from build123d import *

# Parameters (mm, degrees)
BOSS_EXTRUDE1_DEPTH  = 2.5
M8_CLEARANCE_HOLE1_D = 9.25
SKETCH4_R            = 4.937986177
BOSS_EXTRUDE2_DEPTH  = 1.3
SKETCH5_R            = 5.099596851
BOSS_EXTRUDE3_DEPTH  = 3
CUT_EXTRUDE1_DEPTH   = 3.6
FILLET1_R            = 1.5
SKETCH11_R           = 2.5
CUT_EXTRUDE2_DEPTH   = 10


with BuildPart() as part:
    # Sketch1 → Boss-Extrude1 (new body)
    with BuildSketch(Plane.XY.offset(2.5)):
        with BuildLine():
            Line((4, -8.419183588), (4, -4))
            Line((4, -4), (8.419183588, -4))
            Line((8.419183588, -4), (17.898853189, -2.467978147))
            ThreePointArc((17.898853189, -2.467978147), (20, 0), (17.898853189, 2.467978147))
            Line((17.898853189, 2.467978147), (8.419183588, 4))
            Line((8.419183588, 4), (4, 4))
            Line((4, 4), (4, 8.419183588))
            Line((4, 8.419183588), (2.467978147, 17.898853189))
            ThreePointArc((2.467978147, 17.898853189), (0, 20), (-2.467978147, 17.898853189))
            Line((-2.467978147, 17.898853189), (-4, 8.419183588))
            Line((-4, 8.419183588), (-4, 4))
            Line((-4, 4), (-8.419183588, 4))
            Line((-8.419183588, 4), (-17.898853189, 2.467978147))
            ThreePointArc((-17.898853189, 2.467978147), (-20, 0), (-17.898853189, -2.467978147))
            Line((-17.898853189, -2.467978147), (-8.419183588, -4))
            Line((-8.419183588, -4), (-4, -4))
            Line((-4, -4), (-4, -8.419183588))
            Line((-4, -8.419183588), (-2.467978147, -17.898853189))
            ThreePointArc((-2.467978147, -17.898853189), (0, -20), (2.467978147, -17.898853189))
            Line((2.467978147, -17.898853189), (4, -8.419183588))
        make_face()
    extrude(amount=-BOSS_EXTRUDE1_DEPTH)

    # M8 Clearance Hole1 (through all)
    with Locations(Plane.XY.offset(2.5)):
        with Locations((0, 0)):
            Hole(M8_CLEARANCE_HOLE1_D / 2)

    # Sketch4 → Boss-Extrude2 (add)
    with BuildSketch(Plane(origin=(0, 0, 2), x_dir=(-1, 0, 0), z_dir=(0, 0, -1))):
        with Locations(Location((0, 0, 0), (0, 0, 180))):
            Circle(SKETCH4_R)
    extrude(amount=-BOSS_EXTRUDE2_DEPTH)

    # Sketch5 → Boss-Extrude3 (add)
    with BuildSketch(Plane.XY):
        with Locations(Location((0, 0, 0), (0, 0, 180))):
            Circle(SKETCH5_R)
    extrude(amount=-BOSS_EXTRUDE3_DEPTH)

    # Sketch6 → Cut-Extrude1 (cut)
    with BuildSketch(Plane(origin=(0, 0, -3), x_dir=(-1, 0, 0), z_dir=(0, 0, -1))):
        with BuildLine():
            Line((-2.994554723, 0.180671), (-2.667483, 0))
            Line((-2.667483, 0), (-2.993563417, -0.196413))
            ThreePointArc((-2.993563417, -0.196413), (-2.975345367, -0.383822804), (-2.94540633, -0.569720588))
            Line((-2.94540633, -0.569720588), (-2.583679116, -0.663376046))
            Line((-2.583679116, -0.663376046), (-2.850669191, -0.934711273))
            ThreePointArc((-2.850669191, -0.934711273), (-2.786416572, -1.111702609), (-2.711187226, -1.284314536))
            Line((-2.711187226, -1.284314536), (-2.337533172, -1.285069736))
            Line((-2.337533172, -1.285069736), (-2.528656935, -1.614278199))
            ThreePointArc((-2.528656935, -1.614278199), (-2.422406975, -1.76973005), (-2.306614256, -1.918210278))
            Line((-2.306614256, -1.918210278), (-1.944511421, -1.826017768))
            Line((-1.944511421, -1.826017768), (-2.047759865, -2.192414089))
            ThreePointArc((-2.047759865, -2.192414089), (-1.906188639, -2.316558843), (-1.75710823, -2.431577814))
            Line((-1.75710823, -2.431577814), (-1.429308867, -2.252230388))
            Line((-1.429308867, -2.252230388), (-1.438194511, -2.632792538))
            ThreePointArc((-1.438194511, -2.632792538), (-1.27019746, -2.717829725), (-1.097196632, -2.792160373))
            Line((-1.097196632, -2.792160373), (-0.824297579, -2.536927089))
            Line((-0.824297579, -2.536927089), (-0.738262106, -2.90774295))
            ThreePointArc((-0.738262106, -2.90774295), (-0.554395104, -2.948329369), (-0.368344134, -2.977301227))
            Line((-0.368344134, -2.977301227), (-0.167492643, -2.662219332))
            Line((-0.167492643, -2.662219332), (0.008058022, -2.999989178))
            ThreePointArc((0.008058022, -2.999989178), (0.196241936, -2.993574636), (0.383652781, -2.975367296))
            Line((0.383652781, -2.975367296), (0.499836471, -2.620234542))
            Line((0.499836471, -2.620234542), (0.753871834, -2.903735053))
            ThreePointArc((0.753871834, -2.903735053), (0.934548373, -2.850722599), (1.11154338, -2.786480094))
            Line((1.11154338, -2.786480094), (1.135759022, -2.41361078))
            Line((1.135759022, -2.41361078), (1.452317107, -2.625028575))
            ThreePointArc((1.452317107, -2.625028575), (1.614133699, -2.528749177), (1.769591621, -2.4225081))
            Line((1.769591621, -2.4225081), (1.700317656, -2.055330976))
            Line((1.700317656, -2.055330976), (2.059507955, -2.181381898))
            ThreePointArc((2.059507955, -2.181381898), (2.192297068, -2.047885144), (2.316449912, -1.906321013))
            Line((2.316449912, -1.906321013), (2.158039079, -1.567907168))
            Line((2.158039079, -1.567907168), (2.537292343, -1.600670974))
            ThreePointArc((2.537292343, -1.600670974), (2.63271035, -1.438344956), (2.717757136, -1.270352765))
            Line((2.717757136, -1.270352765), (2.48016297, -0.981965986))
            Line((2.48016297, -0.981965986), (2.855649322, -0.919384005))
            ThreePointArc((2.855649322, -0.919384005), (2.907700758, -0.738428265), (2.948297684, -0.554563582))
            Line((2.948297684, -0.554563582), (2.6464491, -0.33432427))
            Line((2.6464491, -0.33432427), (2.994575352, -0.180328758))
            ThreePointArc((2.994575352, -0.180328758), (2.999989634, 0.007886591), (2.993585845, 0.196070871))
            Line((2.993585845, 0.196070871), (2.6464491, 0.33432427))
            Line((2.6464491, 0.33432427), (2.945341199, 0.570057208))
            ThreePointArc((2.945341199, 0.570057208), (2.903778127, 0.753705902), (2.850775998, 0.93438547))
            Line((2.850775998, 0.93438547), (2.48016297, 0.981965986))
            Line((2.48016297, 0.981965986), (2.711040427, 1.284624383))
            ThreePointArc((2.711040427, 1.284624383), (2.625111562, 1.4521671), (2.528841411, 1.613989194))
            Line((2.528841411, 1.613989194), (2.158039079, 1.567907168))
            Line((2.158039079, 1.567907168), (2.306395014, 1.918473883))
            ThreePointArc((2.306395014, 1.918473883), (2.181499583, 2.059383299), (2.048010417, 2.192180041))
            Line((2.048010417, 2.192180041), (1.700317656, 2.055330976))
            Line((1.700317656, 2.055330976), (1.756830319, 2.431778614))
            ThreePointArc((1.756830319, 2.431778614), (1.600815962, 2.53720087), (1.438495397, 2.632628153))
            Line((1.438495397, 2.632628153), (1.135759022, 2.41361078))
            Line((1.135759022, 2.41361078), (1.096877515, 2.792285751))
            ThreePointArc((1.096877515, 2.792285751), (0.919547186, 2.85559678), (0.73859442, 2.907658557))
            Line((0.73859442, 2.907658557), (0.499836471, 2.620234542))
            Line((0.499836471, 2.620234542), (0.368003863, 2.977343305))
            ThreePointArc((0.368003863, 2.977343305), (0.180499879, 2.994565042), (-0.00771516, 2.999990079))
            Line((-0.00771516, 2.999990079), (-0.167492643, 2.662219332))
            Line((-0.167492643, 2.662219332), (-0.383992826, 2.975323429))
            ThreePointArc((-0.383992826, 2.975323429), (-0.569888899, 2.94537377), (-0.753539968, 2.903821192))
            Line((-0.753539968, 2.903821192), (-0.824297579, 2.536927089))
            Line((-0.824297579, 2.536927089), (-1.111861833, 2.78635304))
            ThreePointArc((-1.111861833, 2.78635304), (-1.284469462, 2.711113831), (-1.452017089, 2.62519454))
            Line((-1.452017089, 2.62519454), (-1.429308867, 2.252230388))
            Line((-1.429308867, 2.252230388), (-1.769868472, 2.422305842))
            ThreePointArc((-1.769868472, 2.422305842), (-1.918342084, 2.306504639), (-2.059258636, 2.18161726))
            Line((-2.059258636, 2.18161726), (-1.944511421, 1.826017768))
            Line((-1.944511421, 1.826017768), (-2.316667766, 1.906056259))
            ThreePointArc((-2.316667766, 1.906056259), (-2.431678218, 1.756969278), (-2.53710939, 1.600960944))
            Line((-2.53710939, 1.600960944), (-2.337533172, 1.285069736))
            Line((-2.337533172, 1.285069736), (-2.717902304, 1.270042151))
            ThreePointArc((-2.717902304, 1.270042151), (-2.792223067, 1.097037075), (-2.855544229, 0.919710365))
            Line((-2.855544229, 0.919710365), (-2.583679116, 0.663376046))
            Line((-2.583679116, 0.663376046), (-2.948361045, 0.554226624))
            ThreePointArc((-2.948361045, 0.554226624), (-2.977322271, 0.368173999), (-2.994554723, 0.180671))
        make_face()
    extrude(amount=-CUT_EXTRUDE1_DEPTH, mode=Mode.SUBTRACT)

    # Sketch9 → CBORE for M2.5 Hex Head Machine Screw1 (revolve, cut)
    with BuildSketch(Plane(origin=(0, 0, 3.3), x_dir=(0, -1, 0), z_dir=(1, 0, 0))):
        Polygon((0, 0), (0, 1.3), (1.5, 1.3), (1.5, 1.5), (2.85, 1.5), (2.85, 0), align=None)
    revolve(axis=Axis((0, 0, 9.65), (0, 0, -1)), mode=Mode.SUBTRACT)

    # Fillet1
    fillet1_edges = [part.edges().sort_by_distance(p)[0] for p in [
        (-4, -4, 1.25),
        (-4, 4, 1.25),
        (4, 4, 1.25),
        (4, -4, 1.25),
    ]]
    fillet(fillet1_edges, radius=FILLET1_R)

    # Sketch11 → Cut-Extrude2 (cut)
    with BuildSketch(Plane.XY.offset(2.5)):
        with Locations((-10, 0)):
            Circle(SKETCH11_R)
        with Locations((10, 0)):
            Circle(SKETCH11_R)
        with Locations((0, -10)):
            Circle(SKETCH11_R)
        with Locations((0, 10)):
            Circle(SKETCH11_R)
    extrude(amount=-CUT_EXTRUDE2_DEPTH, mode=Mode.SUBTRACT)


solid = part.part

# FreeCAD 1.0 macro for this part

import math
import FreeCAD as App
import Part
import Sketcher


def edges_at(feature, points):
    """Names of the edges that pass closest to the given points."""
    edges = feature.Shape.Edges
    near = lambda p: min(range(len(edges)), key=lambda i: edges[i].distToShape(Part.Vertex(*p))[0])
    return sorted({f"Edge{near(p) + 1}" for p in points})

doc = App.newDocument("Part")
body = doc.addObject("PartDesign::Body", "Body")

# Sketch on XY plane
sketch1 = body.newObject("Sketcher::SketchObject", "Sketch")
sketch1.AttachmentSupport = (doc.getObject("XY_Plane"), [""])
sketch1.MapMode = "FlatFace"
sketch1.AttachmentOffset = App.Placement(App.Vector(0, 0, 2.5), App.Rotation())
sketch1.addGeometry([
    Part.LineSegment(App.Vector(4, -8.4, 0), App.Vector(4, -4, 0)),  # 0
    Part.LineSegment(App.Vector(4, -4, 0), App.Vector(8.4, -4, 0)),  # 1
    Part.LineSegment(App.Vector(8.4, -4, 0), App.Vector(17.9, -2.5, 0)),  # 2
    Part.ArcOfCircle(Part.Circle(App.Vector(17.5, 0, 0), App.Vector(0, 0, 1), 2.5), math.radians(-81), math.radians(81)),  # 3
    Part.LineSegment(App.Vector(17.9, 2.5, 0), App.Vector(8.4, 4, 0)),  # 4
    Part.LineSegment(App.Vector(8.4, 4, 0), App.Vector(4, 4, 0)),  # 5
    Part.LineSegment(App.Vector(4, 4, 0), App.Vector(4, 8.4, 0)),  # 6
    Part.LineSegment(App.Vector(4, 8.4, 0), App.Vector(2.5, 17.9, 0)),  # 7
    Part.ArcOfCircle(Part.Circle(App.Vector(0, 17.5, 0), App.Vector(0, 0, 1), 2.5), math.radians(9), math.radians(171)),  # 8
    Part.LineSegment(App.Vector(-2.5, 17.9, 0), App.Vector(-4, 8.4, 0)),  # 9
    Part.LineSegment(App.Vector(-4, 8.4, 0), App.Vector(-4, 4, 0)),  # 10
    Part.LineSegment(App.Vector(-4, 4, 0), App.Vector(-8.4, 4, 0)),  # 11
    Part.LineSegment(App.Vector(-8.4, 4, 0), App.Vector(-17.9, 2.5, 0)),  # 12
    Part.ArcOfCircle(Part.Circle(App.Vector(-17.5, 0, 0), App.Vector(0, 0, 1), 2.5), math.radians(99), math.radians(261)),  # 13
    Part.LineSegment(App.Vector(-17.9, -2.5, 0), App.Vector(-8.4, -4, 0)),  # 14
    Part.LineSegment(App.Vector(-8.4, -4, 0), App.Vector(-4, -4, 0)),  # 15
    Part.LineSegment(App.Vector(-4, -4, 0), App.Vector(-4, -8.4, 0)),  # 16
    Part.LineSegment(App.Vector(-4, -8.4, 0), App.Vector(-2.5, -17.9, 0)),  # 17
    Part.ArcOfCircle(Part.Circle(App.Vector(0, -17.5, 0), App.Vector(0, 0, 1), 2.5), math.radians(-171), math.radians(-9)),  # 18
    Part.LineSegment(App.Vector(2.5, -17.9, 0), App.Vector(4, -8.4, 0)),  # 19
], False)
sketch1.addConstraint([
    Sketcher.Constraint("Coincident", 0, 2, 1, 1),
    Sketcher.Constraint("Coincident", 1, 2, 2, 1),
    Sketcher.Constraint("Tangent", 2, 2, 3, 1),
    Sketcher.Constraint("Tangent", 3, 2, 4, 1),
    Sketcher.Constraint("Coincident", 4, 2, 5, 1),
    Sketcher.Constraint("Coincident", 5, 2, 6, 1),
    Sketcher.Constraint("Coincident", 6, 2, 7, 1),
    Sketcher.Constraint("Tangent", 7, 2, 8, 1),
    Sketcher.Constraint("Tangent", 8, 2, 9, 1),
    Sketcher.Constraint("Coincident", 9, 2, 10, 1),
    Sketcher.Constraint("Coincident", 10, 2, 11, 1),
    Sketcher.Constraint("Coincident", 11, 2, 12, 1),
    Sketcher.Constraint("Tangent", 12, 2, 13, 1),
    Sketcher.Constraint("Tangent", 13, 2, 14, 1),
    Sketcher.Constraint("Coincident", 14, 2, 15, 1),
    Sketcher.Constraint("Coincident", 15, 2, 16, 1),
    Sketcher.Constraint("Coincident", 16, 2, 17, 1),
    Sketcher.Constraint("Tangent", 17, 2, 18, 1),
    Sketcher.Constraint("Tangent", 18, 2, 19, 1),
    Sketcher.Constraint("Coincident", 19, 2, 0, 1),
    Sketcher.Constraint("Vertical", 0),
    Sketcher.Constraint("Horizontal", 1),
    Sketcher.Constraint("Horizontal", 5),
    Sketcher.Constraint("Vertical", 6),
    Sketcher.Constraint("Vertical", 10),
    Sketcher.Constraint("Horizontal", 11),
    Sketcher.Constraint("Horizontal", 15),
    Sketcher.Constraint("Vertical", 16),
    Sketcher.Constraint("Equal", 3, 8),
    Sketcher.Constraint("Equal", 8, 13),
    Sketcher.Constraint("Equal", 13, 18),
    Sketcher.Constraint("Symmetric", 3, 3, 13, 3, -1, 1),
    Sketcher.Constraint("Symmetric", 8, 3, 18, 3, -1, 1),
    Sketcher.Constraint("Symmetric", 0, 2, 10, 2, -1, 1),
    Sketcher.Constraint("Symmetric", 4, 2, 14, 2, -1, 1),
    Sketcher.Constraint("Symmetric", 6, 2, 16, 2, -1, 1),
    Sketcher.Constraint("Symmetric", 7, 2, 8, 2, -2),
    Sketcher.Constraint("Symmetric", 5, 2, 10, 2, -2),
    Sketcher.Constraint("Symmetric", 3, 2, 12, 2, -2),
    Sketcher.Constraint("Perpendicular", 2, 7),
    Sketcher.Constraint("Perpendicular", 4, 9),
    Sketcher.Constraint("Perpendicular", 14, 19),
    Sketcher.Constraint("Equal", 15, 0),
    Sketcher.Constraint("Equal", 4, 7),
    Sketcher.Constraint("Radius", 3, 2.5),
    Sketcher.Constraint("DistanceX", -1, 1, 0, 2, 4.0),
    Sketcher.Constraint("DistanceX", 13, 3, 3, 3, 35.0),
    Sketcher.Constraint("DistanceX", 1, 1, 1, 2, 4.419184),
])
pad1 = body.newObject("PartDesign::Pad", "Pad")
pad1.Profile = sketch1
pad1.Length = 2.5
pad1.Reversed = True

# Sketch on XY plane
sketch2 = body.newObject("Sketcher::SketchObject", "Sketch001")
sketch2.AttachmentSupport = (doc.getObject("XY_Plane"), [""])
sketch2.MapMode = "FlatFace"
sketch2.AttachmentOffset = App.Placement(App.Vector(0, 0, 2.5), App.Rotation())
sketch2.addGeometry(Part.Circle(App.Vector(0, 0, 0), App.Vector(0, 0, 1), 4.6), False)
sketch2.addConstraint([
    Sketcher.Constraint("Coincident", 0, 3, -1, 1),
    Sketcher.Constraint("Diameter", 0, 9.25),
])
doc.recompute()
hole = body.newObject("PartDesign::Hole", "Hole")
hole.Profile = sketch2
hole.ThreadType = "None"
hole.Diameter = 9.25
hole.DepthType = "ThroughAll"

# Sketch on XY plane
sketch3 = body.newObject("Sketcher::SketchObject", "Sketch002")
sketch3.AttachmentSupport = (doc.getObject("XY_Plane"), [""])
sketch3.MapMode = "FlatFace"
sketch3.AttachmentOffset = App.Placement(App.Vector(0, 0, 2), App.Rotation())
sketch3.addGeometry(Part.Circle(App.Vector(0, 0, 0), App.Vector(0, 0, 1), 4.9), False)
sketch3.addConstraint([
    Sketcher.Constraint("Coincident", 0, 3, -1, 1),
    Sketcher.Constraint("Diameter", 0, 9.875972),
])
pad2 = body.newObject("PartDesign::Pad", "Pad001")
pad2.Profile = sketch3
pad2.Length = 1.3

# Sketch on XY plane
sketch4 = body.newObject("Sketcher::SketchObject", "Sketch003")
sketch4.AttachmentSupport = (doc.getObject("XY_Plane"), [""])
sketch4.MapMode = "FlatFace"
sketch4.addGeometry(Part.Circle(App.Vector(0, 0, 0), App.Vector(0, 0, 1), 5), False)
sketch4.addConstraint([
    Sketcher.Constraint("Coincident", 0, 3, -1, 1),
    Sketcher.Constraint("Diameter", 0, 10.199194),
])
pad3 = body.newObject("PartDesign::Pad", "Pad002")
pad3.Profile = sketch4
pad3.Length = 3
pad3.Reversed = True

# Sketch on XY plane
sketch5 = body.newObject("Sketcher::SketchObject", "Sketch004")
sketch5.AttachmentSupport = (doc.getObject("XY_Plane"), [""])
sketch5.MapMode = "FlatFace"
sketch5.AttachmentOffset = App.Placement(App.Vector(0, 0, -3), App.Rotation())
sketch5.addGeometry([
    Part.LineSegment(App.Vector(2.994555, 0.180671, 0), App.Vector(2.667483, 0, 0)),  # 0
    Part.LineSegment(App.Vector(2.667483, 0, 0), App.Vector(2.993563, -0.196413, 0)),  # 1
    Part.ArcOfCircle(Part.Circle(App.Vector(0, 0, 0), App.Vector(0, 0, 1), 3), math.radians(-10.947349), math.radians(-3.753897)),  # 2
    Part.LineSegment(App.Vector(2.945406, -0.569721, 0), App.Vector(2.583679, -0.663376, 0)),  # 3
    Part.LineSegment(App.Vector(2.583679, -0.663376, 0), App.Vector(2.850669, -0.934711, 0)),  # 4
    Part.ArcOfCircle(Part.Circle(App.Vector(0, 0, 0), App.Vector(0, 0, 1), 3), math.radians(-25.347349), math.radians(-18.153897)),  # 5
    Part.LineSegment(App.Vector(2.711187, -1.284315, 0), App.Vector(2.337533, -1.28507, 0)),  # 6
    Part.LineSegment(App.Vector(2.337533, -1.28507, 0), App.Vector(2.528657, -1.614278, 0)),  # 7
    Part.ArcOfCircle(Part.Circle(App.Vector(0, 0, 0), App.Vector(0, 0, 1), 3), math.radians(-39.747349), math.radians(-32.553897)),  # 8
    Part.LineSegment(App.Vector(2.306614, -1.91821, 0), App.Vector(1.944511, -1.826018, 0)),  # 9
    Part.LineSegment(App.Vector(1.944511, -1.826018, 0), App.Vector(2.04776, -2.192414, 0)),  # 10
    Part.ArcOfCircle(Part.Circle(App.Vector(0, 0, 0), App.Vector(0, 0, 1), 3), math.radians(-54.147349), math.radians(-46.953897)),  # 11
    Part.LineSegment(App.Vector(1.757108, -2.431578, 0), App.Vector(1.429309, -2.25223, 0)),  # 12
    Part.LineSegment(App.Vector(1.429309, -2.25223, 0), App.Vector(1.438195, -2.632793, 0)),  # 13
    Part.ArcOfCircle(Part.Circle(App.Vector(0, 0, 0), App.Vector(0, 0, 1), 3), math.radians(-68.547349), math.radians(-61.353897)),  # 14
    Part.LineSegment(App.Vector(1.097197, -2.79216, 0), App.Vector(0.824298, -2.536927, 0)),  # 15
    Part.LineSegment(App.Vector(0.824298, -2.536927, 0), App.Vector(0.738262, -2.907743, 0)),  # 16
    Part.ArcOfCircle(Part.Circle(App.Vector(0, 0, 0), App.Vector(0, 0, 1), 3), math.radians(-82.947349), math.radians(-75.753897)),  # 17
    Part.LineSegment(App.Vector(0.368344, -2.977301, 0), App.Vector(0.167493, -2.662219, 0)),  # 18
    Part.LineSegment(App.Vector(0.167493, -2.662219, 0), App.Vector(-0.008058, -2.999989, 0)),  # 19
    Part.ArcOfCircle(Part.Circle(App.Vector(0, 0, 0), App.Vector(0, 0, 1), 3), math.radians(-97.347349), math.radians(-90.153897)),  # 20
    Part.LineSegment(App.Vector(-0.383653, -2.975367, 0), App.Vector(-0.499836, -2.620235, 0)),  # 21
    Part.LineSegment(App.Vector(-0.499836, -2.620235, 0), App.Vector(-0.753872, -2.903735, 0)),  # 22
    Part.ArcOfCircle(Part.Circle(App.Vector(0, 0, 0), App.Vector(0, 0, 1), 3), math.radians(-111.747349), math.radians(-104.553897)),  # 23
    Part.LineSegment(App.Vector(-1.111543, -2.78648, 0), App.Vector(-1.135759, -2.413611, 0)),  # 24
    Part.LineSegment(App.Vector(-1.135759, -2.413611, 0), App.Vector(-1.452317, -2.625029, 0)),  # 25
    Part.ArcOfCircle(Part.Circle(App.Vector(0, 0, 0), App.Vector(0, 0, 1), 3), math.radians(-126.147349), math.radians(-118.953897)),  # 26
    Part.LineSegment(App.Vector(-1.769592, -2.422508, 0), App.Vector(-1.700318, -2.055331, 0)),  # 27
    Part.LineSegment(App.Vector(-1.700318, -2.055331, 0), App.Vector(-2.059508, -2.181382, 0)),  # 28
    Part.ArcOfCircle(Part.Circle(App.Vector(0, 0, 0), App.Vector(0, 0, 1), 3), math.radians(-140.547349), math.radians(-133.353897)),  # 29
    Part.LineSegment(App.Vector(-2.31645, -1.906321, 0), App.Vector(-2.158039, -1.567907, 0)),  # 30
    Part.LineSegment(App.Vector(-2.158039, -1.567907, 0), App.Vector(-2.537292, -1.600671, 0)),  # 31
    Part.ArcOfCircle(Part.Circle(App.Vector(0, 0, 0), App.Vector(0, 0, 1), 3), math.radians(-154.947349), math.radians(-147.753897)),  # 32
    Part.LineSegment(App.Vector(-2.717757, -1.270353, 0), App.Vector(-2.480163, -0.981966, 0)),  # 33
    Part.LineSegment(App.Vector(-2.480163, -0.981966, 0), App.Vector(-2.855649, -0.919384, 0)),  # 34
    Part.ArcOfCircle(Part.Circle(App.Vector(0, 0, 0), App.Vector(0, 0, 1), 3), math.radians(-169.347349), math.radians(-162.153897)),  # 35
    Part.LineSegment(App.Vector(-2.948298, -0.554564, 0), App.Vector(-2.646449, -0.334324, 0)),  # 36
    Part.LineSegment(App.Vector(-2.646449, -0.334324, 0), App.Vector(-2.994575, -0.180329, 0)),  # 37
    Part.ArcOfCircle(Part.Circle(App.Vector(0, 0, 0), App.Vector(0, 0, 1), 3), math.radians(176.252651), math.radians(183.446103)),  # 38
    Part.LineSegment(App.Vector(-2.993586, 0.196071, 0), App.Vector(-2.646449, 0.334324, 0)),  # 39
    Part.LineSegment(App.Vector(-2.646449, 0.334324, 0), App.Vector(-2.945341, 0.570057, 0)),  # 40
    Part.ArcOfCircle(Part.Circle(App.Vector(0, 0, 0), App.Vector(0, 0, 1), 3), math.radians(161.852651), math.radians(169.046103)),  # 41
    Part.LineSegment(App.Vector(-2.850776, 0.934385, 0), App.Vector(-2.480163, 0.981966, 0)),  # 42
    Part.LineSegment(App.Vector(-2.480163, 0.981966, 0), App.Vector(-2.71104, 1.284624, 0)),  # 43
    Part.ArcOfCircle(Part.Circle(App.Vector(0, 0, 0), App.Vector(0, 0, 1), 3), math.radians(147.452651), math.radians(154.646103)),  # 44
    Part.LineSegment(App.Vector(-2.528841, 1.613989, 0), App.Vector(-2.158039, 1.567907, 0)),  # 45
    Part.LineSegment(App.Vector(-2.158039, 1.567907, 0), App.Vector(-2.306395, 1.918474, 0)),  # 46
    Part.ArcOfCircle(Part.Circle(App.Vector(0, 0, 0), App.Vector(0, 0, 1), 3), math.radians(133.052651), math.radians(140.246103)),  # 47
    Part.LineSegment(App.Vector(-2.04801, 2.19218, 0), App.Vector(-1.700318, 2.055331, 0)),  # 48
    Part.LineSegment(App.Vector(-1.700318, 2.055331, 0), App.Vector(-1.75683, 2.431779, 0)),  # 49
    Part.ArcOfCircle(Part.Circle(App.Vector(0, 0, 0), App.Vector(0, 0, 1), 3), math.radians(118.652651), math.radians(125.846103)),  # 50
    Part.LineSegment(App.Vector(-1.438495, 2.632628, 0), App.Vector(-1.135759, 2.413611, 0)),  # 51
    Part.LineSegment(App.Vector(-1.135759, 2.413611, 0), App.Vector(-1.096878, 2.792286, 0)),  # 52
    Part.ArcOfCircle(Part.Circle(App.Vector(0, 0, 0), App.Vector(0, 0, 1), 3), math.radians(104.252651), math.radians(111.446103)),  # 53
    Part.LineSegment(App.Vector(-0.738594, 2.907659, 0), App.Vector(-0.499836, 2.620235, 0)),  # 54
    Part.LineSegment(App.Vector(-0.499836, 2.620235, 0), App.Vector(-0.368004, 2.977343, 0)),  # 55
    Part.ArcOfCircle(Part.Circle(App.Vector(0, 0, 0), App.Vector(0, 0, 1), 3), math.radians(89.852651), math.radians(97.046103)),  # 56
    Part.LineSegment(App.Vector(0.007715, 2.99999, 0), App.Vector(0.167493, 2.662219, 0)),  # 57
    Part.LineSegment(App.Vector(0.167493, 2.662219, 0), App.Vector(0.383993, 2.975323, 0)),  # 58
    Part.ArcOfCircle(Part.Circle(App.Vector(0, 0, 0), App.Vector(0, 0, 1), 3), math.radians(75.452651), math.radians(82.646103)),  # 59
    Part.LineSegment(App.Vector(0.75354, 2.903821, 0), App.Vector(0.824298, 2.536927, 0)),  # 60
    Part.LineSegment(App.Vector(0.824298, 2.536927, 0), App.Vector(1.111862, 2.786353, 0)),  # 61
    Part.ArcOfCircle(Part.Circle(App.Vector(0, 0, 0), App.Vector(0, 0, 1), 3), math.radians(61.052651), math.radians(68.246103)),  # 62
    Part.LineSegment(App.Vector(1.452017, 2.625195, 0), App.Vector(1.429309, 2.25223, 0)),  # 63
    Part.LineSegment(App.Vector(1.429309, 2.25223, 0), App.Vector(1.769868, 2.422306, 0)),  # 64
    Part.ArcOfCircle(Part.Circle(App.Vector(0, 0, 0), App.Vector(0, 0, 1), 3), math.radians(46.652651), math.radians(53.846103)),  # 65
    Part.LineSegment(App.Vector(2.059259, 2.181617, 0), App.Vector(1.944511, 1.826018, 0)),  # 66
    Part.LineSegment(App.Vector(1.944511, 1.826018, 0), App.Vector(2.316668, 1.906056, 0)),  # 67
    Part.ArcOfCircle(Part.Circle(App.Vector(0, 0, 0), App.Vector(0, 0, 1), 3), math.radians(32.252651), math.radians(39.446103)),  # 68
    Part.LineSegment(App.Vector(2.537109, 1.600961, 0), App.Vector(2.337533, 1.28507, 0)),  # 69
    Part.LineSegment(App.Vector(2.337533, 1.28507, 0), App.Vector(2.717902, 1.270042, 0)),  # 70
    Part.ArcOfCircle(Part.Circle(App.Vector(0, 0, 0), App.Vector(0, 0, 1), 3), math.radians(17.852651), math.radians(25.046103)),  # 71
    Part.LineSegment(App.Vector(2.855544, 0.91971, 0), App.Vector(2.583679, 0.663376, 0)),  # 72
    Part.LineSegment(App.Vector(2.583679, 0.663376, 0), App.Vector(2.948361, 0.554227, 0)),  # 73
    Part.ArcOfCircle(Part.Circle(App.Vector(0, 0, 0), App.Vector(0, 0, 1), 3), math.radians(3.452651), math.radians(10.646103)),  # 74
], False)
sketch5.addConstraint([
    Sketcher.Constraint("Coincident", 0, 2, 1, 1),
    Sketcher.Constraint("Coincident", 1, 2, 2, 2),
    Sketcher.Constraint("Coincident", 2, 1, 3, 1),
    Sketcher.Constraint("Coincident", 3, 2, 4, 1),
    Sketcher.Constraint("Coincident", 4, 2, 5, 2),
    Sketcher.Constraint("Coincident", 5, 1, 6, 1),
    Sketcher.Constraint("Coincident", 6, 2, 7, 1),
    Sketcher.Constraint("Coincident", 7, 2, 8, 2),
    Sketcher.Constraint("Coincident", 8, 1, 9, 1),
    Sketcher.Constraint("Coincident", 9, 2, 10, 1),
    Sketcher.Constraint("Coincident", 10, 2, 11, 2),
    Sketcher.Constraint("Coincident", 11, 1, 12, 1),
    Sketcher.Constraint("Coincident", 12, 2, 13, 1),
    Sketcher.Constraint("Coincident", 13, 2, 14, 2),
    Sketcher.Constraint("Coincident", 14, 1, 15, 1),
    Sketcher.Constraint("Coincident", 15, 2, 16, 1),
    Sketcher.Constraint("Coincident", 16, 2, 17, 2),
    Sketcher.Constraint("Coincident", 17, 1, 18, 1),
    Sketcher.Constraint("Coincident", 18, 2, 19, 1),
    Sketcher.Constraint("Coincident", 19, 2, 20, 2),
    Sketcher.Constraint("Coincident", 20, 1, 21, 1),
    Sketcher.Constraint("Coincident", 21, 2, 22, 1),
    Sketcher.Constraint("Coincident", 22, 2, 23, 2),
    Sketcher.Constraint("Coincident", 23, 1, 24, 1),
    Sketcher.Constraint("Coincident", 24, 2, 25, 1),
    Sketcher.Constraint("Coincident", 25, 2, 26, 2),
    Sketcher.Constraint("Coincident", 26, 1, 27, 1),
    Sketcher.Constraint("Coincident", 27, 2, 28, 1),
    Sketcher.Constraint("Coincident", 28, 2, 29, 2),
    Sketcher.Constraint("Coincident", 29, 1, 30, 1),
    Sketcher.Constraint("Coincident", 30, 2, 31, 1),
    Sketcher.Constraint("Coincident", 31, 2, 32, 2),
    Sketcher.Constraint("Coincident", 32, 1, 33, 1),
    Sketcher.Constraint("Coincident", 33, 2, 34, 1),
    Sketcher.Constraint("Coincident", 34, 2, 35, 2),
    Sketcher.Constraint("Coincident", 35, 1, 36, 1),
    Sketcher.Constraint("Coincident", 36, 2, 37, 1),
    Sketcher.Constraint("Coincident", 37, 2, 38, 2),
    Sketcher.Constraint("Coincident", 38, 1, 39, 1),
    Sketcher.Constraint("Coincident", 39, 2, 40, 1),
    Sketcher.Constraint("Coincident", 40, 2, 41, 2),
    Sketcher.Constraint("Coincident", 41, 1, 42, 1),
    Sketcher.Constraint("Coincident", 42, 2, 43, 1),
    Sketcher.Constraint("Coincident", 43, 2, 44, 2),
    Sketcher.Constraint("Coincident", 44, 1, 45, 1),
    Sketcher.Constraint("Coincident", 45, 2, 46, 1),
    Sketcher.Constraint("Coincident", 46, 2, 47, 2),
    Sketcher.Constraint("Coincident", 47, 1, 48, 1),
    Sketcher.Constraint("Coincident", 48, 2, 49, 1),
    Sketcher.Constraint("Coincident", 49, 2, 50, 2),
    Sketcher.Constraint("Coincident", 50, 1, 51, 1),
    Sketcher.Constraint("Coincident", 51, 2, 52, 1),
    Sketcher.Constraint("Coincident", 52, 2, 53, 2),
    Sketcher.Constraint("Coincident", 53, 1, 54, 1),
    Sketcher.Constraint("Coincident", 54, 2, 55, 1),
    Sketcher.Constraint("Coincident", 55, 2, 56, 2),
    Sketcher.Constraint("Coincident", 56, 1, 57, 1),
    Sketcher.Constraint("Coincident", 57, 2, 58, 1),
    Sketcher.Constraint("Coincident", 58, 2, 59, 2),
    Sketcher.Constraint("Coincident", 59, 1, 60, 1),
    Sketcher.Constraint("Coincident", 60, 2, 61, 1),
    Sketcher.Constraint("Coincident", 61, 2, 62, 2),
    Sketcher.Constraint("Coincident", 62, 1, 63, 1),
    Sketcher.Constraint("Coincident", 63, 2, 64, 1),
    Sketcher.Constraint("Coincident", 64, 2, 65, 2),
    Sketcher.Constraint("Coincident", 65, 1, 66, 1),
    Sketcher.Constraint("Coincident", 66, 2, 67, 1),
    Sketcher.Constraint("Coincident", 67, 2, 68, 2),
    Sketcher.Constraint("Coincident", 68, 1, 69, 1),
    Sketcher.Constraint("Coincident", 69, 2, 70, 1),
    Sketcher.Constraint("Coincident", 70, 2, 71, 2),
    Sketcher.Constraint("Coincident", 71, 1, 72, 1),
    Sketcher.Constraint("Coincident", 72, 2, 73, 1),
    Sketcher.Constraint("Coincident", 73, 2, 74, 2),
    Sketcher.Constraint("Coincident", 74, 1, 0, 1),
    Sketcher.Constraint("Coincident", 2, 3, -1, 1),
    Sketcher.Constraint("Coincident", 5, 3, -1, 1),
    Sketcher.Constraint("Coincident", 8, 3, -1, 1),
    Sketcher.Constraint("Coincident", 11, 3, -1, 1),
    Sketcher.Constraint("Coincident", 14, 3, -1, 1),
    Sketcher.Constraint("Coincident", 17, 3, -1, 1),
    Sketcher.Constraint("Coincident", 20, 3, -1, 1),
    Sketcher.Constraint("Coincident", 23, 3, -1, 1),
    Sketcher.Constraint("Coincident", 26, 3, -1, 1),
    Sketcher.Constraint("Coincident", 29, 3, -1, 1),
    Sketcher.Constraint("Coincident", 32, 3, -1, 1),
    Sketcher.Constraint("Coincident", 35, 3, -1, 1),
    Sketcher.Constraint("Coincident", 38, 3, -1, 1),
    Sketcher.Constraint("Coincident", 41, 3, -1, 1),
    Sketcher.Constraint("Coincident", 44, 3, -1, 1),
    Sketcher.Constraint("Coincident", 47, 3, -1, 1),
    Sketcher.Constraint("Coincident", 50, 3, -1, 1),
    Sketcher.Constraint("Coincident", 53, 3, -1, 1),
    Sketcher.Constraint("Coincident", 56, 3, -1, 1),
    Sketcher.Constraint("Coincident", 59, 3, -1, 1),
    Sketcher.Constraint("Coincident", 62, 3, -1, 1),
    Sketcher.Constraint("Coincident", 65, 3, -1, 1),
    Sketcher.Constraint("Coincident", 68, 3, -1, 1),
    Sketcher.Constraint("Coincident", 71, 3, -1, 1),
    Sketcher.Constraint("Coincident", 74, 3, -1, 1),
    Sketcher.Constraint("PointOnObject", 0, 2, -1),
    Sketcher.Constraint("Radius", 2, 3.0),
    Sketcher.Constraint("Radius", 5, 3.0),
    Sketcher.Constraint("Radius", 8, 3.0),
    Sketcher.Constraint("Radius", 11, 3.0),
    Sketcher.Constraint("Radius", 14, 3.0),
    Sketcher.Constraint("Radius", 17, 3.0),
    Sketcher.Constraint("Radius", 20, 3.0),
    Sketcher.Constraint("Radius", 23, 3.0),
    Sketcher.Constraint("Radius", 26, 3.0),
    Sketcher.Constraint("Radius", 29, 3.0),
    Sketcher.Constraint("Radius", 32, 3.0),
    Sketcher.Constraint("Radius", 35, 3.0),
    Sketcher.Constraint("Radius", 38, 3.0),
    Sketcher.Constraint("Radius", 41, 3.0),
    Sketcher.Constraint("Radius", 44, 3.0),
    Sketcher.Constraint("Radius", 47, 3.0),
    Sketcher.Constraint("Radius", 50, 3.0),
    Sketcher.Constraint("Radius", 53, 3.0),
    Sketcher.Constraint("Radius", 56, 3.0),
    Sketcher.Constraint("Radius", 59, 3.0),
    Sketcher.Constraint("Radius", 62, 3.0),
    Sketcher.Constraint("Radius", 65, 3.0),
    Sketcher.Constraint("Radius", 68, 3.0),
    Sketcher.Constraint("Radius", 71, 3.0),
    Sketcher.Constraint("Radius", 74, 3.0),
    Sketcher.Constraint("DistanceY", 17, 1, -1, 1, 2.977301),
    Sketcher.Constraint("DistanceY", 2, 1, -1, 1, 0.569721),
    Sketcher.Constraint("DistanceX", -1, 1, 3, 2, 2.583679),
    Sketcher.Constraint("DistanceX", -1, 1, 4, 2, 2.850669),
    Sketcher.Constraint("DistanceY", 6, 2, -1, 1, 1.28507),
    Sketcher.Constraint("DistanceY", 7, 2, -1, 1, 1.614278),
    Sketcher.Constraint("DistanceY", 8, 1, -1, 1, 1.91821),
    Sketcher.Constraint("DistanceX", -1, 1, 9, 2, 1.944511),
    Sketcher.Constraint("DistanceX", -1, 1, 10, 2, 2.04776),
    Sketcher.Constraint("DistanceX", -1, 1, 11, 1, 1.757108),
    Sketcher.Constraint("DistanceX", -1, 1, 12, 2, 1.429309),
    Sketcher.Constraint("DistanceY", 12, 2, -1, 1, 2.25223),
    Sketcher.Constraint("DistanceY", 14, 1, -1, 1, 2.79216),
    Sketcher.Constraint("DistanceY", 18, 2, -1, 1, 2.662219),
    Sketcher.Constraint("DistanceX", 19, 2, -1, 1, 0.008058),
    Sketcher.Constraint("DistanceX", 22, 2, -1, 1, 0.753872),
    Sketcher.Constraint("DistanceY", 23, 1, -1, 1, 2.78648),
    Sketcher.Constraint("DistanceX", 24, 2, -1, 1, 1.135759),
    Sketcher.Constraint("DistanceY", 24, 2, -1, 1, 2.413611),
    Sketcher.Constraint("DistanceY", 25, 2, -1, 1, 2.625029),
    Sketcher.Constraint("DistanceX", 26, 1, -1, 1, 1.769592),
    Sketcher.Constraint("DistanceY", 27, 2, -1, 1, 2.055331),
    Sketcher.Constraint("DistanceY", 28, 2, -1, 1, 2.181382),
    Sketcher.Constraint("DistanceX", 29, 1, -1, 1, 2.31645),
    Sketcher.Constraint("DistanceX", 30, 2, -1, 1, 2.158039),
    Sketcher.Constraint("DistanceY", 31, 2, -1, 1, 1.600671),
    Sketcher.Constraint("DistanceX", 34, 2, -1, 1, 2.855649),
    Sketcher.Constraint("DistanceX", 36, 2, -1, 1, 2.646449),
    Sketcher.Constraint("DistanceY", 37, 2, -1, 1, 0.180329),
    Sketcher.Constraint("DistanceY", -1, 1, 38, 1, 0.196071),
    Sketcher.Constraint("DistanceX", 39, 2, -1, 1, 2.646449),
    Sketcher.Constraint("DistanceX", 40, 2, -1, 1, 2.945341),
    Sketcher.Constraint("DistanceX", 43, 2, -1, 1, 2.71104),
    Sketcher.Constraint("DistanceX", 44, 1, -1, 1, 2.528841),
    Sketcher.Constraint("DistanceX", 45, 2, -1, 1, 2.158039),
    Sketcher.Constraint("DistanceX", 47, 1, -1, 1, 2.04801),
    Sketcher.Constraint("DistanceY", -1, 1, 48, 2, 2.055331),
    Sketcher.Constraint("DistanceX", 49, 2, -1, 1, 1.75683),
    Sketcher.Constraint("DistanceY", -1, 1, 50, 1, 2.632628),
    Sketcher.Constraint("DistanceX", 51, 2, -1, 1, 1.135759),
    Sketcher.Constraint("DistanceY", -1, 1, 51, 2, 2.413611),
    Sketcher.Constraint("DistanceY", -1, 1, 53, 1, 2.907659),
    Sketcher.Constraint("DistanceY", -1, 1, 57, 2, 2.662219),
    Sketcher.Constraint("DistanceX", -1, 1, 59, 1, 0.75354),
    Sketcher.Constraint("DistanceX", -1, 1, 61, 2, 1.111862),
    Sketcher.Constraint("DistanceX", -1, 1, 63, 2, 1.429309),
    Sketcher.Constraint("DistanceY", -1, 1, 63, 2, 2.25223),
    Sketcher.Constraint("DistanceX", -1, 1, 64, 2, 1.769868),
    Sketcher.Constraint("DistanceX", -1, 1, 65, 1, 2.059259),
    Sketcher.Constraint("DistanceX", -1, 1, 66, 2, 1.944511),
    Sketcher.Constraint("DistanceX", -1, 1, 68, 1, 2.537109),
    Sketcher.Constraint("DistanceY", -1, 1, 69, 2, 1.28507),
    Sketcher.Constraint("DistanceY", -1, 1, 71, 1, 0.91971),
    Sketcher.Constraint("DistanceX", -1, 1, 72, 2, 2.583679),
    Sketcher.Constraint("DistanceX", -1, 1, 73, 2, 2.948361),
    Sketcher.Constraint("DistanceY", -1, 1, 74, 1, 0.180671),
    Sketcher.Constraint("Distance", 0, 0.373655),
    Sketcher.Constraint("Distance", 1, 0.380666),
    Sketcher.Constraint("Distance", 3, 0.373655),
    Sketcher.Constraint("Distance", 6, 0.373655),
    Sketcher.Constraint("Distance", 7, 0.380666),
    Sketcher.Constraint("Distance", 9, 0.373655),
    Sketcher.Constraint("Distance", 13, 0.380666),
    Sketcher.Constraint("Distance", 15, 0.373655),
    Sketcher.Constraint("Distance", 16, 0.380666),
    Sketcher.Constraint("Distance", 18, 0.373655),
    Sketcher.Constraint("Distance", 21, 0.373655),
    Sketcher.Constraint("Distance", 22, 0.380666),
    Sketcher.Constraint("Distance", 27, 0.373655),
    Sketcher.Constraint("Distance", 30, 0.373655),
    Sketcher.Constraint("Distance", 33, 0.373655),
    Sketcher.Constraint("Distance", 34, 0.380666),
    Sketcher.Constraint("Distance", 36, 0.373655),
    Sketcher.Constraint("Distance", 37, 0.380666),
    Sketcher.Constraint("Distance", 39, 0.373655),
    Sketcher.Constraint("Distance", 42, 0.373655),
    Sketcher.Constraint("Distance", 43, 0.380666),
    Sketcher.Constraint("Distance", 45, 0.373655),
    Sketcher.Constraint("Distance", 46, 0.380666),
    Sketcher.Constraint("Distance", 48, 0.373655),
    Sketcher.Constraint("Distance", 52, 0.380666),
    Sketcher.Constraint("Distance", 54, 0.373655),
    Sketcher.Constraint("Distance", 55, 0.380666),
    Sketcher.Constraint("Distance", 57, 0.373655),
    Sketcher.Constraint("Distance", 58, 0.380666),
    Sketcher.Constraint("Distance", 60, 0.373655),
    Sketcher.Constraint("Distance", 61, 0.380666),
    Sketcher.Constraint("Distance", 63, 0.373655),
    Sketcher.Constraint("Distance", 66, 0.373655),
    Sketcher.Constraint("Distance", 67, 0.380666),
    Sketcher.Constraint("Distance", 69, 0.373655),
    Sketcher.Constraint("Distance", 70, 0.380666),
    Sketcher.Constraint("Distance", 72, 0.373655),
    Sketcher.Constraint("DistanceX", -1, 1, 15, 2, 0.824298),
    Sketcher.Constraint("DistanceX", 20, 1, -1, 1, 0.383653),
    Sketcher.Constraint("DistanceX", 32, 1, -1, 1, 2.717757),
    Sketcher.Constraint("DistanceX", 41, 1, -1, 1, 2.850776),
    Sketcher.Constraint("DistanceX", 54, 2, -1, 1, 0.499836),
    Sketcher.Constraint("DistanceX", -1, 1, 56, 1, 0.007715),
])
pocket1 = body.newObject("PartDesign::Pocket", "Pocket")
pocket1.Profile = sketch5
pocket1.Length = 3.6
pocket1.Reversed = True

# Sketch on YZ plane
sketch6 = body.newObject("Sketcher::SketchObject", "Sketch005")
sketch6.AttachmentSupport = (doc.getObject("YZ_Plane"), [""])
sketch6.MapMode = "FlatFace"
sketch6.addGeometry([
    Part.LineSegment(App.Vector(0, 2, 0), App.Vector(0, 3.3, 0)),  # 0
    Part.LineSegment(App.Vector(0, 3.3, 0), App.Vector(-2.85, 3.3, 0)),  # 1
    Part.LineSegment(App.Vector(-2.85, 3.3, 0), App.Vector(-2.85, 1.8, 0)),  # 2
    Part.LineSegment(App.Vector(-2.85, 1.8, 0), App.Vector(-1.5, 1.8, 0)),  # 3
    Part.LineSegment(App.Vector(-1.5, 1.8, 0), App.Vector(-1.5, 2, 0)),  # 4
    Part.LineSegment(App.Vector(-1.5, 2, 0), App.Vector(0, 2, 0)),  # 5
], False)
sketch6.addConstraint([
    Sketcher.Constraint("Coincident", 0, 2, 1, 1),
    Sketcher.Constraint("Coincident", 1, 2, 2, 1),
    Sketcher.Constraint("Coincident", 2, 2, 3, 1),
    Sketcher.Constraint("Coincident", 3, 2, 4, 1),
    Sketcher.Constraint("Coincident", 4, 2, 5, 1),
    Sketcher.Constraint("Coincident", 5, 2, 0, 1),
    Sketcher.Constraint("Vertical", 0),
    Sketcher.Constraint("Horizontal", 1),
    Sketcher.Constraint("Vertical", 2),
    Sketcher.Constraint("Horizontal", 3),
    Sketcher.Constraint("Vertical", 4),
    Sketcher.Constraint("Horizontal", 5),
    Sketcher.Constraint("PointOnObject", 0, 2, -2),
    Sketcher.Constraint("Equal", 5, 2),
    Sketcher.Constraint("DistanceX", 5, 1, 5, 2, 1.5),
    Sketcher.Constraint("DistanceY", 0, 1, 0, 2, 1.3),
    Sketcher.Constraint("DistanceY", -1, 1, 4, 2, 2.0),
    Sketcher.Constraint("DistanceX", 1, 2, 1, 1, 2.85),
])
groove = body.newObject("PartDesign::Groove", "Groove")
groove.Profile = sketch6
groove.ReferenceAxis = (sketch6, ["V_Axis"])
groove.Angle = 360
doc.recompute()

fillet = body.newObject("PartDesign::Fillet", "Fillet")
fillet.Base = (groove, edges_at(groove, [
    (-4, -4, 1.25),
    (-4, 4, 1.25),
    (4, 4, 1.25),
    (4, -4, 1.25),
]))
fillet.Radius = 1.5

# Sketch on XY plane
sketch7 = body.newObject("Sketcher::SketchObject", "Sketch006")
sketch7.AttachmentSupport = (doc.getObject("XY_Plane"), [""])
sketch7.MapMode = "FlatFace"
sketch7.AttachmentOffset = App.Placement(App.Vector(0, 0, 2.5), App.Rotation())
sketch7.addGeometry([
    Part.Circle(App.Vector(-10, 0, 0), App.Vector(0, 0, 1), 2.5),
    Part.Circle(App.Vector(10, 0, 0), App.Vector(0, 0, 1), 2.5),
    Part.Circle(App.Vector(0, -10, 0), App.Vector(0, 0, 1), 2.5),
    Part.Circle(App.Vector(0, 10, 0), App.Vector(0, 0, 1), 2.5),
], False)
sketch7.addConstraint([
    Sketcher.Constraint("Equal", 0, 1),
    Sketcher.Constraint("Equal", 1, 2),
    Sketcher.Constraint("Equal", 2, 3),
    Sketcher.Constraint("Symmetric", 0, 3, 1, 3, -1, 1),
    Sketcher.Constraint("Symmetric", 2, 3, 3, 3, -1, 1),
    Sketcher.Constraint("PointOnObject", 0, 3, -1),
    Sketcher.Constraint("PointOnObject", 2, 3, -2),
    Sketcher.Constraint("Diameter", 0, 5.0),
    Sketcher.Constraint("DistanceX", 0, 3, -1, 1, 10.0),
    Sketcher.Constraint("DistanceY", 2, 3, -1, 1, 10.0),
])
pocket2 = body.newObject("PartDesign::Pocket", "Pocket001")
pocket2.Profile = sketch7
pocket2.Length = 10

doc.recompute()
